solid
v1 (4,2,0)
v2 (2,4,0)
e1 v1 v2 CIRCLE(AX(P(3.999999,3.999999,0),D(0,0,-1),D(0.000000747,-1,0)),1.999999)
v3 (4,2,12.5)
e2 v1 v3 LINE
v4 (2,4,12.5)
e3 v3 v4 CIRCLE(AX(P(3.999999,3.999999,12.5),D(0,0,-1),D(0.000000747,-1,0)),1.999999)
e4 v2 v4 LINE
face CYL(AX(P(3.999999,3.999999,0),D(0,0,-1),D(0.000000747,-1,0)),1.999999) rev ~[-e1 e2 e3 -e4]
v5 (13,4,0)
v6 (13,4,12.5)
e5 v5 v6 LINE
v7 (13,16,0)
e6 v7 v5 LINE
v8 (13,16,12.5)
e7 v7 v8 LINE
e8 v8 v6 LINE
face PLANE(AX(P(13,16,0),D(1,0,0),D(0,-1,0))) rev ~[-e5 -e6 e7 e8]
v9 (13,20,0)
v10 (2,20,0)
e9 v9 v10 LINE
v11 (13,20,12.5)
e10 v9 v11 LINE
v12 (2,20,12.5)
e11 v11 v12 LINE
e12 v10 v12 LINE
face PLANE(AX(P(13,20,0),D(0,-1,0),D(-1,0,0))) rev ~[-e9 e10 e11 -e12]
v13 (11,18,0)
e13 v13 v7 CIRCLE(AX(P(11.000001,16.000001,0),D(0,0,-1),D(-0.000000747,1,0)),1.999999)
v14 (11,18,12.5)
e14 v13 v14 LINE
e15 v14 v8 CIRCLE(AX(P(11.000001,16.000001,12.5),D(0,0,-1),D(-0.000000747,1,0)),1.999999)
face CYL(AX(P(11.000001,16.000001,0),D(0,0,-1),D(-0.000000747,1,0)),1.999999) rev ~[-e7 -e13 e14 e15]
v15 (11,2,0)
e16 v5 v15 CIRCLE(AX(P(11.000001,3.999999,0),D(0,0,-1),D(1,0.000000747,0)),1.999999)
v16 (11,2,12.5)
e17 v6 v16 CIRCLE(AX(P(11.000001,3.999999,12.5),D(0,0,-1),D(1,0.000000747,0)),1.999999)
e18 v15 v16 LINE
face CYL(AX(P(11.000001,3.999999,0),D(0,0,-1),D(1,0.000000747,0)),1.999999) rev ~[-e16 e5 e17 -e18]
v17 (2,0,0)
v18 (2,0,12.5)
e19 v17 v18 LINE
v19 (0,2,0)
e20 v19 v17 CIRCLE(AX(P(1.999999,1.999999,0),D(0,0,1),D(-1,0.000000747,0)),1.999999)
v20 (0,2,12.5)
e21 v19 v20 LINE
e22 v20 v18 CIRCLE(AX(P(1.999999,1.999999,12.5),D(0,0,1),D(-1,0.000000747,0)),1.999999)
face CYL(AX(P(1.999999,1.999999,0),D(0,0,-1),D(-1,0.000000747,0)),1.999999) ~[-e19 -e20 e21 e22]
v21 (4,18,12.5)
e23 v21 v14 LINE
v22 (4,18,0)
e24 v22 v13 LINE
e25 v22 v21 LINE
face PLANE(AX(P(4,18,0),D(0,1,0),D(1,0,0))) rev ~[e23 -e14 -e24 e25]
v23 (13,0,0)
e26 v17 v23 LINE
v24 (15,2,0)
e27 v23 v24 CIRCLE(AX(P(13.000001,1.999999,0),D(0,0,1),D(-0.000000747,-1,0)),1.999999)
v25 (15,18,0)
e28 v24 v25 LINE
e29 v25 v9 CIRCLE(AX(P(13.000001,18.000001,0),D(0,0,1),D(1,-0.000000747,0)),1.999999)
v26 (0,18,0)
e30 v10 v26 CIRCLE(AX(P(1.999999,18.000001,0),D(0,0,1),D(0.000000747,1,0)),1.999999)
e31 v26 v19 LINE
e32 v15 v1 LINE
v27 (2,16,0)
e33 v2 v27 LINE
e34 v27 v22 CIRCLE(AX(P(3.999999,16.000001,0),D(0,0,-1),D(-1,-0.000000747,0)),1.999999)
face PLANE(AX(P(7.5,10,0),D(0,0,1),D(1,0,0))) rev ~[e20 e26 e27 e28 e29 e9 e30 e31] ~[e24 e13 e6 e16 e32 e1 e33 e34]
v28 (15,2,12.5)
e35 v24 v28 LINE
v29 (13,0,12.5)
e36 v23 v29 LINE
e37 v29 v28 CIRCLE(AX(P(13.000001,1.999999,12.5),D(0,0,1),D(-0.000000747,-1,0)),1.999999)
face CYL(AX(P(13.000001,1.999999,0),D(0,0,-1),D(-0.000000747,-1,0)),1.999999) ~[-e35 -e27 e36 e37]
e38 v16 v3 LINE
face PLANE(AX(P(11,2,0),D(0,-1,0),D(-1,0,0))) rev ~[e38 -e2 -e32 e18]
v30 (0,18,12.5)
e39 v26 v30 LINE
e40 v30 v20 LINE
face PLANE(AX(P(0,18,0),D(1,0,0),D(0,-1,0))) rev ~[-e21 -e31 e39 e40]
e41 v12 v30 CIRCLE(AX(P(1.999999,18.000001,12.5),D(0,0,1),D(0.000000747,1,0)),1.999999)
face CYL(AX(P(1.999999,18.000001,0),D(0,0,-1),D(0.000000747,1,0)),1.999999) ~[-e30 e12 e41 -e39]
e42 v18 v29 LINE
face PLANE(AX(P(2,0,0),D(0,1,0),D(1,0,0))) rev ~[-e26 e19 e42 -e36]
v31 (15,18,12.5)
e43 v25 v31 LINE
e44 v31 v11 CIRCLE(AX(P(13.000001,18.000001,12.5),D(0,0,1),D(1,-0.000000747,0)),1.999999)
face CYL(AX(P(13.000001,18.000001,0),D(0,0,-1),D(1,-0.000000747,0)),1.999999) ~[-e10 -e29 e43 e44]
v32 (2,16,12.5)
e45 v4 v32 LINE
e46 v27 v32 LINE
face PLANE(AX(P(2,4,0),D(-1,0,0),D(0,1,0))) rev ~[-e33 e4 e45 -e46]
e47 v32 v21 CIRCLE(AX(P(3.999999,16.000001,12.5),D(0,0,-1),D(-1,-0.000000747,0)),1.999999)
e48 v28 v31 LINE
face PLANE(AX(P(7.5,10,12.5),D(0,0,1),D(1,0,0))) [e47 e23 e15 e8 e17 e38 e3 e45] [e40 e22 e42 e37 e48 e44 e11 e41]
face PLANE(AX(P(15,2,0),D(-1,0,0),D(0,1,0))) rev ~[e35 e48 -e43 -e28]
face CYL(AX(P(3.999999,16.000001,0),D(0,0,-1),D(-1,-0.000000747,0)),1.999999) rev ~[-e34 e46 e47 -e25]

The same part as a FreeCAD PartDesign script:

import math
import FreeCAD as App
import Part
import Sketcher
Q = App.Units.Quantity

doc = App.newDocument("Part")
body = doc.addObject("PartDesign::Body", "Body")

sketch1 = doc.addObject("Sketcher::SketchObject", "Sketch")
body.addObject(sketch1)
sketch1.AttachmentSupport = (doc.XY_Plane, [""])
sketch1.MapMode = "FlatFace"
sketch1.addGeometry(Part.ArcOfCircle(Part.Circle(App.Vector(2, 2, 0), App.Vector(0, 0, 1), 2), math.radians(180), math.radians(270)), False)
sketch1.addGeometry(Part.LineSegment(App.Vector(2, 0, 0), App.Vector(13, 0, 0)), False)
sketch1.addGeometry(Part.ArcOfCircle(Part.Circle(App.Vector(13, 2, 0), App.Vector(0, 0, 1), 2), math.radians(-90), math.radians(0)), False)
sketch1.addGeometry(Part.LineSegment(App.Vector(15, 2, 0), App.Vector(15, 18, 0)), False)
sketch1.addGeometry(Part.ArcOfCircle(Part.Circle(App.Vector(13, 18, 0), App.Vector(0, 0, 1), 2), math.radians(0), math.radians(90)), False)
sketch1.addGeometry(Part.LineSegment(App.Vector(13, 20, 0), App.Vector(2, 20, 0)), False)
sketch1.addGeometry(Part.ArcOfCircle(Part.Circle(App.Vector(2, 18, 0), App.Vector(0, 0, 1), 2), math.radians(90), math.radians(180)), False)
sketch1.addGeometry(Part.LineSegment(App.Vector(0, 18, 0), App.Vector(0, 2, 0)), False)
sketch1.addGeometry(Part.LineSegment(App.Vector(2, 4, 0), App.Vector(2, 16, 0)), False)
sketch1.addGeometry(Part.ArcOfCircle(Part.Circle(App.Vector(4, 16, 0), App.Vector(0, 0, 1), 2), math.radians(90), math.radians(180)), False)
sketch1.addGeometry(Part.LineSegment(App.Vector(4, 18, 0), App.Vector(11, 18, 0)), False)
sketch1.addGeometry(Part.ArcOfCircle(Part.Circle(App.Vector(11, 16, 0), App.Vector(0, 0, 1), 2), math.radians(0), math.radians(90)), False)
sketch1.addGeometry(Part.LineSegment(App.Vector(13, 16, 0), App.Vector(13, 4, 0)), False)
sketch1.addGeometry(Part.ArcOfCircle(Part.Circle(App.Vector(11, 4, 0), App.Vector(0, 0, 1), 2), math.radians(-90), math.radians(0)), False)
sketch1.addGeometry(Part.LineSegment(App.Vector(11, 2, 0), App.Vector(4, 2, 0)), False)
sketch1.addGeometry(Part.ArcOfCircle(Part.Circle(App.Vector(4, 4, 0), App.Vector(0, 0, 1), 2), math.radians(180), math.radians(270)), False)
sketch1.addConstraint(Sketcher.Constraint("Tangent", 0, 2, 1, 1))
sketch1.addConstraint(Sketcher.Constraint("Tangent", 1, 2, 2, 1))
sketch1.addConstraint(Sketcher.Constraint("Tangent", 2, 2, 3, 1))
sketch1.addConstraint(Sketcher.Constraint("Tangent", 3, 2, 4, 1))
sketch1.addConstraint(Sketcher.Constraint("Tangent", 4, 2, 5, 1))
sketch1.addConstraint(Sketcher.Constraint("Tangent", 5, 2, 6, 1))
sketch1.addConstraint(Sketcher.Constraint("Tangent", 6, 2, 7, 1))
sketch1.addConstraint(Sketcher.Constraint("Tangent", 7, 2, 0, 1))
sketch1.addConstraint(Sketcher.Constraint("Tangent", 8, 2, 9, 2))
sketch1.addConstraint(Sketcher.Constraint("Tangent", 9, 1, 10, 1))
sketch1.addConstraint(Sketcher.Constraint("Tangent", 10, 2, 11, 2))
sketch1.addConstraint(Sketcher.Constraint("Tangent", 11, 1, 12, 1))
sketch1.addConstraint(Sketcher.Constraint("Tangent", 12, 2, 13, 2))
sketch1.addConstraint(Sketcher.Constraint("Tangent", 13, 1, 14, 1))
sketch1.addConstraint(Sketcher.Constraint("Tangent", 14, 2, 15, 2))
sketch1.addConstraint(Sketcher.Constraint("Tangent", 15, 1, 8, 1))
sketch1.addConstraint(Sketcher.Constraint("Horizontal", 1))
sketch1.addConstraint(Sketcher.Constraint("Vertical", 3))
sketch1.addConstraint(Sketcher.Constraint("Horizontal", 5))
sketch1.addConstraint(Sketcher.Constraint("Vertical", 7))
sketch1.addConstraint(Sketcher.Constraint("Vertical", 8))
sketch1.addConstraint(Sketcher.Constraint("Horizontal", 10))
sketch1.addConstraint(Sketcher.Constraint("Vertical", 12))
sketch1.addConstraint(Sketcher.Constraint("Horizontal", 14))
sketch1.addConstraint(Sketcher.Constraint("Equal", 0, 2))
sketch1.addConstraint(Sketcher.Constraint("Equal", 2, 4))
sketch1.addConstraint(Sketcher.Constraint("Equal", 4, 6))
sketch1.addConstraint(Sketcher.Constraint("Equal", 6, 9))
sketch1.addConstraint(Sketcher.Constraint("Equal", 9, 11))
sketch1.addConstraint(Sketcher.Constraint("Equal", 11, 13))
sketch1.addConstraint(Sketcher.Constraint("Equal", 13, 15))
sketch1.addConstraint(Sketcher.Constraint("PointOnObject", 0, 2, -1))
sketch1.addConstraint(Sketcher.Constraint("PointOnObject", 6, 2, -2))
sketch1.addConstraint(Sketcher.Constraint("Horizontal", 6, 2, 9, 1))
sketch1.addConstraint(Sketcher.Constraint("Horizontal", 7, 2, 13, 1))
sketch1.addConstraint(Sketcher.Constraint("Vertical", 5, 2, 8, 2))
sketch1.addConstraint(Sketcher.Constraint("Vertical", 4, 2, 11, 1))
sketch1.addConstraint(Sketcher.Constraint("Radius", 0, Q("1.999999 mm")))
sketch1.addConstraint(Sketcher.Constraint("DistanceX", 1, 1, 1, 2, Q("11 mm")))
sketch1.addConstraint(Sketcher.Constraint("DistanceY", 3, 1, 3, 2, Q("16 mm")))
pad1 = doc.addObject("PartDesign::Pad", "Pad")
body.addObject(pad1)
pad1.Profile = sketch1
pad1.Length = 12.5

doc.recompute()
